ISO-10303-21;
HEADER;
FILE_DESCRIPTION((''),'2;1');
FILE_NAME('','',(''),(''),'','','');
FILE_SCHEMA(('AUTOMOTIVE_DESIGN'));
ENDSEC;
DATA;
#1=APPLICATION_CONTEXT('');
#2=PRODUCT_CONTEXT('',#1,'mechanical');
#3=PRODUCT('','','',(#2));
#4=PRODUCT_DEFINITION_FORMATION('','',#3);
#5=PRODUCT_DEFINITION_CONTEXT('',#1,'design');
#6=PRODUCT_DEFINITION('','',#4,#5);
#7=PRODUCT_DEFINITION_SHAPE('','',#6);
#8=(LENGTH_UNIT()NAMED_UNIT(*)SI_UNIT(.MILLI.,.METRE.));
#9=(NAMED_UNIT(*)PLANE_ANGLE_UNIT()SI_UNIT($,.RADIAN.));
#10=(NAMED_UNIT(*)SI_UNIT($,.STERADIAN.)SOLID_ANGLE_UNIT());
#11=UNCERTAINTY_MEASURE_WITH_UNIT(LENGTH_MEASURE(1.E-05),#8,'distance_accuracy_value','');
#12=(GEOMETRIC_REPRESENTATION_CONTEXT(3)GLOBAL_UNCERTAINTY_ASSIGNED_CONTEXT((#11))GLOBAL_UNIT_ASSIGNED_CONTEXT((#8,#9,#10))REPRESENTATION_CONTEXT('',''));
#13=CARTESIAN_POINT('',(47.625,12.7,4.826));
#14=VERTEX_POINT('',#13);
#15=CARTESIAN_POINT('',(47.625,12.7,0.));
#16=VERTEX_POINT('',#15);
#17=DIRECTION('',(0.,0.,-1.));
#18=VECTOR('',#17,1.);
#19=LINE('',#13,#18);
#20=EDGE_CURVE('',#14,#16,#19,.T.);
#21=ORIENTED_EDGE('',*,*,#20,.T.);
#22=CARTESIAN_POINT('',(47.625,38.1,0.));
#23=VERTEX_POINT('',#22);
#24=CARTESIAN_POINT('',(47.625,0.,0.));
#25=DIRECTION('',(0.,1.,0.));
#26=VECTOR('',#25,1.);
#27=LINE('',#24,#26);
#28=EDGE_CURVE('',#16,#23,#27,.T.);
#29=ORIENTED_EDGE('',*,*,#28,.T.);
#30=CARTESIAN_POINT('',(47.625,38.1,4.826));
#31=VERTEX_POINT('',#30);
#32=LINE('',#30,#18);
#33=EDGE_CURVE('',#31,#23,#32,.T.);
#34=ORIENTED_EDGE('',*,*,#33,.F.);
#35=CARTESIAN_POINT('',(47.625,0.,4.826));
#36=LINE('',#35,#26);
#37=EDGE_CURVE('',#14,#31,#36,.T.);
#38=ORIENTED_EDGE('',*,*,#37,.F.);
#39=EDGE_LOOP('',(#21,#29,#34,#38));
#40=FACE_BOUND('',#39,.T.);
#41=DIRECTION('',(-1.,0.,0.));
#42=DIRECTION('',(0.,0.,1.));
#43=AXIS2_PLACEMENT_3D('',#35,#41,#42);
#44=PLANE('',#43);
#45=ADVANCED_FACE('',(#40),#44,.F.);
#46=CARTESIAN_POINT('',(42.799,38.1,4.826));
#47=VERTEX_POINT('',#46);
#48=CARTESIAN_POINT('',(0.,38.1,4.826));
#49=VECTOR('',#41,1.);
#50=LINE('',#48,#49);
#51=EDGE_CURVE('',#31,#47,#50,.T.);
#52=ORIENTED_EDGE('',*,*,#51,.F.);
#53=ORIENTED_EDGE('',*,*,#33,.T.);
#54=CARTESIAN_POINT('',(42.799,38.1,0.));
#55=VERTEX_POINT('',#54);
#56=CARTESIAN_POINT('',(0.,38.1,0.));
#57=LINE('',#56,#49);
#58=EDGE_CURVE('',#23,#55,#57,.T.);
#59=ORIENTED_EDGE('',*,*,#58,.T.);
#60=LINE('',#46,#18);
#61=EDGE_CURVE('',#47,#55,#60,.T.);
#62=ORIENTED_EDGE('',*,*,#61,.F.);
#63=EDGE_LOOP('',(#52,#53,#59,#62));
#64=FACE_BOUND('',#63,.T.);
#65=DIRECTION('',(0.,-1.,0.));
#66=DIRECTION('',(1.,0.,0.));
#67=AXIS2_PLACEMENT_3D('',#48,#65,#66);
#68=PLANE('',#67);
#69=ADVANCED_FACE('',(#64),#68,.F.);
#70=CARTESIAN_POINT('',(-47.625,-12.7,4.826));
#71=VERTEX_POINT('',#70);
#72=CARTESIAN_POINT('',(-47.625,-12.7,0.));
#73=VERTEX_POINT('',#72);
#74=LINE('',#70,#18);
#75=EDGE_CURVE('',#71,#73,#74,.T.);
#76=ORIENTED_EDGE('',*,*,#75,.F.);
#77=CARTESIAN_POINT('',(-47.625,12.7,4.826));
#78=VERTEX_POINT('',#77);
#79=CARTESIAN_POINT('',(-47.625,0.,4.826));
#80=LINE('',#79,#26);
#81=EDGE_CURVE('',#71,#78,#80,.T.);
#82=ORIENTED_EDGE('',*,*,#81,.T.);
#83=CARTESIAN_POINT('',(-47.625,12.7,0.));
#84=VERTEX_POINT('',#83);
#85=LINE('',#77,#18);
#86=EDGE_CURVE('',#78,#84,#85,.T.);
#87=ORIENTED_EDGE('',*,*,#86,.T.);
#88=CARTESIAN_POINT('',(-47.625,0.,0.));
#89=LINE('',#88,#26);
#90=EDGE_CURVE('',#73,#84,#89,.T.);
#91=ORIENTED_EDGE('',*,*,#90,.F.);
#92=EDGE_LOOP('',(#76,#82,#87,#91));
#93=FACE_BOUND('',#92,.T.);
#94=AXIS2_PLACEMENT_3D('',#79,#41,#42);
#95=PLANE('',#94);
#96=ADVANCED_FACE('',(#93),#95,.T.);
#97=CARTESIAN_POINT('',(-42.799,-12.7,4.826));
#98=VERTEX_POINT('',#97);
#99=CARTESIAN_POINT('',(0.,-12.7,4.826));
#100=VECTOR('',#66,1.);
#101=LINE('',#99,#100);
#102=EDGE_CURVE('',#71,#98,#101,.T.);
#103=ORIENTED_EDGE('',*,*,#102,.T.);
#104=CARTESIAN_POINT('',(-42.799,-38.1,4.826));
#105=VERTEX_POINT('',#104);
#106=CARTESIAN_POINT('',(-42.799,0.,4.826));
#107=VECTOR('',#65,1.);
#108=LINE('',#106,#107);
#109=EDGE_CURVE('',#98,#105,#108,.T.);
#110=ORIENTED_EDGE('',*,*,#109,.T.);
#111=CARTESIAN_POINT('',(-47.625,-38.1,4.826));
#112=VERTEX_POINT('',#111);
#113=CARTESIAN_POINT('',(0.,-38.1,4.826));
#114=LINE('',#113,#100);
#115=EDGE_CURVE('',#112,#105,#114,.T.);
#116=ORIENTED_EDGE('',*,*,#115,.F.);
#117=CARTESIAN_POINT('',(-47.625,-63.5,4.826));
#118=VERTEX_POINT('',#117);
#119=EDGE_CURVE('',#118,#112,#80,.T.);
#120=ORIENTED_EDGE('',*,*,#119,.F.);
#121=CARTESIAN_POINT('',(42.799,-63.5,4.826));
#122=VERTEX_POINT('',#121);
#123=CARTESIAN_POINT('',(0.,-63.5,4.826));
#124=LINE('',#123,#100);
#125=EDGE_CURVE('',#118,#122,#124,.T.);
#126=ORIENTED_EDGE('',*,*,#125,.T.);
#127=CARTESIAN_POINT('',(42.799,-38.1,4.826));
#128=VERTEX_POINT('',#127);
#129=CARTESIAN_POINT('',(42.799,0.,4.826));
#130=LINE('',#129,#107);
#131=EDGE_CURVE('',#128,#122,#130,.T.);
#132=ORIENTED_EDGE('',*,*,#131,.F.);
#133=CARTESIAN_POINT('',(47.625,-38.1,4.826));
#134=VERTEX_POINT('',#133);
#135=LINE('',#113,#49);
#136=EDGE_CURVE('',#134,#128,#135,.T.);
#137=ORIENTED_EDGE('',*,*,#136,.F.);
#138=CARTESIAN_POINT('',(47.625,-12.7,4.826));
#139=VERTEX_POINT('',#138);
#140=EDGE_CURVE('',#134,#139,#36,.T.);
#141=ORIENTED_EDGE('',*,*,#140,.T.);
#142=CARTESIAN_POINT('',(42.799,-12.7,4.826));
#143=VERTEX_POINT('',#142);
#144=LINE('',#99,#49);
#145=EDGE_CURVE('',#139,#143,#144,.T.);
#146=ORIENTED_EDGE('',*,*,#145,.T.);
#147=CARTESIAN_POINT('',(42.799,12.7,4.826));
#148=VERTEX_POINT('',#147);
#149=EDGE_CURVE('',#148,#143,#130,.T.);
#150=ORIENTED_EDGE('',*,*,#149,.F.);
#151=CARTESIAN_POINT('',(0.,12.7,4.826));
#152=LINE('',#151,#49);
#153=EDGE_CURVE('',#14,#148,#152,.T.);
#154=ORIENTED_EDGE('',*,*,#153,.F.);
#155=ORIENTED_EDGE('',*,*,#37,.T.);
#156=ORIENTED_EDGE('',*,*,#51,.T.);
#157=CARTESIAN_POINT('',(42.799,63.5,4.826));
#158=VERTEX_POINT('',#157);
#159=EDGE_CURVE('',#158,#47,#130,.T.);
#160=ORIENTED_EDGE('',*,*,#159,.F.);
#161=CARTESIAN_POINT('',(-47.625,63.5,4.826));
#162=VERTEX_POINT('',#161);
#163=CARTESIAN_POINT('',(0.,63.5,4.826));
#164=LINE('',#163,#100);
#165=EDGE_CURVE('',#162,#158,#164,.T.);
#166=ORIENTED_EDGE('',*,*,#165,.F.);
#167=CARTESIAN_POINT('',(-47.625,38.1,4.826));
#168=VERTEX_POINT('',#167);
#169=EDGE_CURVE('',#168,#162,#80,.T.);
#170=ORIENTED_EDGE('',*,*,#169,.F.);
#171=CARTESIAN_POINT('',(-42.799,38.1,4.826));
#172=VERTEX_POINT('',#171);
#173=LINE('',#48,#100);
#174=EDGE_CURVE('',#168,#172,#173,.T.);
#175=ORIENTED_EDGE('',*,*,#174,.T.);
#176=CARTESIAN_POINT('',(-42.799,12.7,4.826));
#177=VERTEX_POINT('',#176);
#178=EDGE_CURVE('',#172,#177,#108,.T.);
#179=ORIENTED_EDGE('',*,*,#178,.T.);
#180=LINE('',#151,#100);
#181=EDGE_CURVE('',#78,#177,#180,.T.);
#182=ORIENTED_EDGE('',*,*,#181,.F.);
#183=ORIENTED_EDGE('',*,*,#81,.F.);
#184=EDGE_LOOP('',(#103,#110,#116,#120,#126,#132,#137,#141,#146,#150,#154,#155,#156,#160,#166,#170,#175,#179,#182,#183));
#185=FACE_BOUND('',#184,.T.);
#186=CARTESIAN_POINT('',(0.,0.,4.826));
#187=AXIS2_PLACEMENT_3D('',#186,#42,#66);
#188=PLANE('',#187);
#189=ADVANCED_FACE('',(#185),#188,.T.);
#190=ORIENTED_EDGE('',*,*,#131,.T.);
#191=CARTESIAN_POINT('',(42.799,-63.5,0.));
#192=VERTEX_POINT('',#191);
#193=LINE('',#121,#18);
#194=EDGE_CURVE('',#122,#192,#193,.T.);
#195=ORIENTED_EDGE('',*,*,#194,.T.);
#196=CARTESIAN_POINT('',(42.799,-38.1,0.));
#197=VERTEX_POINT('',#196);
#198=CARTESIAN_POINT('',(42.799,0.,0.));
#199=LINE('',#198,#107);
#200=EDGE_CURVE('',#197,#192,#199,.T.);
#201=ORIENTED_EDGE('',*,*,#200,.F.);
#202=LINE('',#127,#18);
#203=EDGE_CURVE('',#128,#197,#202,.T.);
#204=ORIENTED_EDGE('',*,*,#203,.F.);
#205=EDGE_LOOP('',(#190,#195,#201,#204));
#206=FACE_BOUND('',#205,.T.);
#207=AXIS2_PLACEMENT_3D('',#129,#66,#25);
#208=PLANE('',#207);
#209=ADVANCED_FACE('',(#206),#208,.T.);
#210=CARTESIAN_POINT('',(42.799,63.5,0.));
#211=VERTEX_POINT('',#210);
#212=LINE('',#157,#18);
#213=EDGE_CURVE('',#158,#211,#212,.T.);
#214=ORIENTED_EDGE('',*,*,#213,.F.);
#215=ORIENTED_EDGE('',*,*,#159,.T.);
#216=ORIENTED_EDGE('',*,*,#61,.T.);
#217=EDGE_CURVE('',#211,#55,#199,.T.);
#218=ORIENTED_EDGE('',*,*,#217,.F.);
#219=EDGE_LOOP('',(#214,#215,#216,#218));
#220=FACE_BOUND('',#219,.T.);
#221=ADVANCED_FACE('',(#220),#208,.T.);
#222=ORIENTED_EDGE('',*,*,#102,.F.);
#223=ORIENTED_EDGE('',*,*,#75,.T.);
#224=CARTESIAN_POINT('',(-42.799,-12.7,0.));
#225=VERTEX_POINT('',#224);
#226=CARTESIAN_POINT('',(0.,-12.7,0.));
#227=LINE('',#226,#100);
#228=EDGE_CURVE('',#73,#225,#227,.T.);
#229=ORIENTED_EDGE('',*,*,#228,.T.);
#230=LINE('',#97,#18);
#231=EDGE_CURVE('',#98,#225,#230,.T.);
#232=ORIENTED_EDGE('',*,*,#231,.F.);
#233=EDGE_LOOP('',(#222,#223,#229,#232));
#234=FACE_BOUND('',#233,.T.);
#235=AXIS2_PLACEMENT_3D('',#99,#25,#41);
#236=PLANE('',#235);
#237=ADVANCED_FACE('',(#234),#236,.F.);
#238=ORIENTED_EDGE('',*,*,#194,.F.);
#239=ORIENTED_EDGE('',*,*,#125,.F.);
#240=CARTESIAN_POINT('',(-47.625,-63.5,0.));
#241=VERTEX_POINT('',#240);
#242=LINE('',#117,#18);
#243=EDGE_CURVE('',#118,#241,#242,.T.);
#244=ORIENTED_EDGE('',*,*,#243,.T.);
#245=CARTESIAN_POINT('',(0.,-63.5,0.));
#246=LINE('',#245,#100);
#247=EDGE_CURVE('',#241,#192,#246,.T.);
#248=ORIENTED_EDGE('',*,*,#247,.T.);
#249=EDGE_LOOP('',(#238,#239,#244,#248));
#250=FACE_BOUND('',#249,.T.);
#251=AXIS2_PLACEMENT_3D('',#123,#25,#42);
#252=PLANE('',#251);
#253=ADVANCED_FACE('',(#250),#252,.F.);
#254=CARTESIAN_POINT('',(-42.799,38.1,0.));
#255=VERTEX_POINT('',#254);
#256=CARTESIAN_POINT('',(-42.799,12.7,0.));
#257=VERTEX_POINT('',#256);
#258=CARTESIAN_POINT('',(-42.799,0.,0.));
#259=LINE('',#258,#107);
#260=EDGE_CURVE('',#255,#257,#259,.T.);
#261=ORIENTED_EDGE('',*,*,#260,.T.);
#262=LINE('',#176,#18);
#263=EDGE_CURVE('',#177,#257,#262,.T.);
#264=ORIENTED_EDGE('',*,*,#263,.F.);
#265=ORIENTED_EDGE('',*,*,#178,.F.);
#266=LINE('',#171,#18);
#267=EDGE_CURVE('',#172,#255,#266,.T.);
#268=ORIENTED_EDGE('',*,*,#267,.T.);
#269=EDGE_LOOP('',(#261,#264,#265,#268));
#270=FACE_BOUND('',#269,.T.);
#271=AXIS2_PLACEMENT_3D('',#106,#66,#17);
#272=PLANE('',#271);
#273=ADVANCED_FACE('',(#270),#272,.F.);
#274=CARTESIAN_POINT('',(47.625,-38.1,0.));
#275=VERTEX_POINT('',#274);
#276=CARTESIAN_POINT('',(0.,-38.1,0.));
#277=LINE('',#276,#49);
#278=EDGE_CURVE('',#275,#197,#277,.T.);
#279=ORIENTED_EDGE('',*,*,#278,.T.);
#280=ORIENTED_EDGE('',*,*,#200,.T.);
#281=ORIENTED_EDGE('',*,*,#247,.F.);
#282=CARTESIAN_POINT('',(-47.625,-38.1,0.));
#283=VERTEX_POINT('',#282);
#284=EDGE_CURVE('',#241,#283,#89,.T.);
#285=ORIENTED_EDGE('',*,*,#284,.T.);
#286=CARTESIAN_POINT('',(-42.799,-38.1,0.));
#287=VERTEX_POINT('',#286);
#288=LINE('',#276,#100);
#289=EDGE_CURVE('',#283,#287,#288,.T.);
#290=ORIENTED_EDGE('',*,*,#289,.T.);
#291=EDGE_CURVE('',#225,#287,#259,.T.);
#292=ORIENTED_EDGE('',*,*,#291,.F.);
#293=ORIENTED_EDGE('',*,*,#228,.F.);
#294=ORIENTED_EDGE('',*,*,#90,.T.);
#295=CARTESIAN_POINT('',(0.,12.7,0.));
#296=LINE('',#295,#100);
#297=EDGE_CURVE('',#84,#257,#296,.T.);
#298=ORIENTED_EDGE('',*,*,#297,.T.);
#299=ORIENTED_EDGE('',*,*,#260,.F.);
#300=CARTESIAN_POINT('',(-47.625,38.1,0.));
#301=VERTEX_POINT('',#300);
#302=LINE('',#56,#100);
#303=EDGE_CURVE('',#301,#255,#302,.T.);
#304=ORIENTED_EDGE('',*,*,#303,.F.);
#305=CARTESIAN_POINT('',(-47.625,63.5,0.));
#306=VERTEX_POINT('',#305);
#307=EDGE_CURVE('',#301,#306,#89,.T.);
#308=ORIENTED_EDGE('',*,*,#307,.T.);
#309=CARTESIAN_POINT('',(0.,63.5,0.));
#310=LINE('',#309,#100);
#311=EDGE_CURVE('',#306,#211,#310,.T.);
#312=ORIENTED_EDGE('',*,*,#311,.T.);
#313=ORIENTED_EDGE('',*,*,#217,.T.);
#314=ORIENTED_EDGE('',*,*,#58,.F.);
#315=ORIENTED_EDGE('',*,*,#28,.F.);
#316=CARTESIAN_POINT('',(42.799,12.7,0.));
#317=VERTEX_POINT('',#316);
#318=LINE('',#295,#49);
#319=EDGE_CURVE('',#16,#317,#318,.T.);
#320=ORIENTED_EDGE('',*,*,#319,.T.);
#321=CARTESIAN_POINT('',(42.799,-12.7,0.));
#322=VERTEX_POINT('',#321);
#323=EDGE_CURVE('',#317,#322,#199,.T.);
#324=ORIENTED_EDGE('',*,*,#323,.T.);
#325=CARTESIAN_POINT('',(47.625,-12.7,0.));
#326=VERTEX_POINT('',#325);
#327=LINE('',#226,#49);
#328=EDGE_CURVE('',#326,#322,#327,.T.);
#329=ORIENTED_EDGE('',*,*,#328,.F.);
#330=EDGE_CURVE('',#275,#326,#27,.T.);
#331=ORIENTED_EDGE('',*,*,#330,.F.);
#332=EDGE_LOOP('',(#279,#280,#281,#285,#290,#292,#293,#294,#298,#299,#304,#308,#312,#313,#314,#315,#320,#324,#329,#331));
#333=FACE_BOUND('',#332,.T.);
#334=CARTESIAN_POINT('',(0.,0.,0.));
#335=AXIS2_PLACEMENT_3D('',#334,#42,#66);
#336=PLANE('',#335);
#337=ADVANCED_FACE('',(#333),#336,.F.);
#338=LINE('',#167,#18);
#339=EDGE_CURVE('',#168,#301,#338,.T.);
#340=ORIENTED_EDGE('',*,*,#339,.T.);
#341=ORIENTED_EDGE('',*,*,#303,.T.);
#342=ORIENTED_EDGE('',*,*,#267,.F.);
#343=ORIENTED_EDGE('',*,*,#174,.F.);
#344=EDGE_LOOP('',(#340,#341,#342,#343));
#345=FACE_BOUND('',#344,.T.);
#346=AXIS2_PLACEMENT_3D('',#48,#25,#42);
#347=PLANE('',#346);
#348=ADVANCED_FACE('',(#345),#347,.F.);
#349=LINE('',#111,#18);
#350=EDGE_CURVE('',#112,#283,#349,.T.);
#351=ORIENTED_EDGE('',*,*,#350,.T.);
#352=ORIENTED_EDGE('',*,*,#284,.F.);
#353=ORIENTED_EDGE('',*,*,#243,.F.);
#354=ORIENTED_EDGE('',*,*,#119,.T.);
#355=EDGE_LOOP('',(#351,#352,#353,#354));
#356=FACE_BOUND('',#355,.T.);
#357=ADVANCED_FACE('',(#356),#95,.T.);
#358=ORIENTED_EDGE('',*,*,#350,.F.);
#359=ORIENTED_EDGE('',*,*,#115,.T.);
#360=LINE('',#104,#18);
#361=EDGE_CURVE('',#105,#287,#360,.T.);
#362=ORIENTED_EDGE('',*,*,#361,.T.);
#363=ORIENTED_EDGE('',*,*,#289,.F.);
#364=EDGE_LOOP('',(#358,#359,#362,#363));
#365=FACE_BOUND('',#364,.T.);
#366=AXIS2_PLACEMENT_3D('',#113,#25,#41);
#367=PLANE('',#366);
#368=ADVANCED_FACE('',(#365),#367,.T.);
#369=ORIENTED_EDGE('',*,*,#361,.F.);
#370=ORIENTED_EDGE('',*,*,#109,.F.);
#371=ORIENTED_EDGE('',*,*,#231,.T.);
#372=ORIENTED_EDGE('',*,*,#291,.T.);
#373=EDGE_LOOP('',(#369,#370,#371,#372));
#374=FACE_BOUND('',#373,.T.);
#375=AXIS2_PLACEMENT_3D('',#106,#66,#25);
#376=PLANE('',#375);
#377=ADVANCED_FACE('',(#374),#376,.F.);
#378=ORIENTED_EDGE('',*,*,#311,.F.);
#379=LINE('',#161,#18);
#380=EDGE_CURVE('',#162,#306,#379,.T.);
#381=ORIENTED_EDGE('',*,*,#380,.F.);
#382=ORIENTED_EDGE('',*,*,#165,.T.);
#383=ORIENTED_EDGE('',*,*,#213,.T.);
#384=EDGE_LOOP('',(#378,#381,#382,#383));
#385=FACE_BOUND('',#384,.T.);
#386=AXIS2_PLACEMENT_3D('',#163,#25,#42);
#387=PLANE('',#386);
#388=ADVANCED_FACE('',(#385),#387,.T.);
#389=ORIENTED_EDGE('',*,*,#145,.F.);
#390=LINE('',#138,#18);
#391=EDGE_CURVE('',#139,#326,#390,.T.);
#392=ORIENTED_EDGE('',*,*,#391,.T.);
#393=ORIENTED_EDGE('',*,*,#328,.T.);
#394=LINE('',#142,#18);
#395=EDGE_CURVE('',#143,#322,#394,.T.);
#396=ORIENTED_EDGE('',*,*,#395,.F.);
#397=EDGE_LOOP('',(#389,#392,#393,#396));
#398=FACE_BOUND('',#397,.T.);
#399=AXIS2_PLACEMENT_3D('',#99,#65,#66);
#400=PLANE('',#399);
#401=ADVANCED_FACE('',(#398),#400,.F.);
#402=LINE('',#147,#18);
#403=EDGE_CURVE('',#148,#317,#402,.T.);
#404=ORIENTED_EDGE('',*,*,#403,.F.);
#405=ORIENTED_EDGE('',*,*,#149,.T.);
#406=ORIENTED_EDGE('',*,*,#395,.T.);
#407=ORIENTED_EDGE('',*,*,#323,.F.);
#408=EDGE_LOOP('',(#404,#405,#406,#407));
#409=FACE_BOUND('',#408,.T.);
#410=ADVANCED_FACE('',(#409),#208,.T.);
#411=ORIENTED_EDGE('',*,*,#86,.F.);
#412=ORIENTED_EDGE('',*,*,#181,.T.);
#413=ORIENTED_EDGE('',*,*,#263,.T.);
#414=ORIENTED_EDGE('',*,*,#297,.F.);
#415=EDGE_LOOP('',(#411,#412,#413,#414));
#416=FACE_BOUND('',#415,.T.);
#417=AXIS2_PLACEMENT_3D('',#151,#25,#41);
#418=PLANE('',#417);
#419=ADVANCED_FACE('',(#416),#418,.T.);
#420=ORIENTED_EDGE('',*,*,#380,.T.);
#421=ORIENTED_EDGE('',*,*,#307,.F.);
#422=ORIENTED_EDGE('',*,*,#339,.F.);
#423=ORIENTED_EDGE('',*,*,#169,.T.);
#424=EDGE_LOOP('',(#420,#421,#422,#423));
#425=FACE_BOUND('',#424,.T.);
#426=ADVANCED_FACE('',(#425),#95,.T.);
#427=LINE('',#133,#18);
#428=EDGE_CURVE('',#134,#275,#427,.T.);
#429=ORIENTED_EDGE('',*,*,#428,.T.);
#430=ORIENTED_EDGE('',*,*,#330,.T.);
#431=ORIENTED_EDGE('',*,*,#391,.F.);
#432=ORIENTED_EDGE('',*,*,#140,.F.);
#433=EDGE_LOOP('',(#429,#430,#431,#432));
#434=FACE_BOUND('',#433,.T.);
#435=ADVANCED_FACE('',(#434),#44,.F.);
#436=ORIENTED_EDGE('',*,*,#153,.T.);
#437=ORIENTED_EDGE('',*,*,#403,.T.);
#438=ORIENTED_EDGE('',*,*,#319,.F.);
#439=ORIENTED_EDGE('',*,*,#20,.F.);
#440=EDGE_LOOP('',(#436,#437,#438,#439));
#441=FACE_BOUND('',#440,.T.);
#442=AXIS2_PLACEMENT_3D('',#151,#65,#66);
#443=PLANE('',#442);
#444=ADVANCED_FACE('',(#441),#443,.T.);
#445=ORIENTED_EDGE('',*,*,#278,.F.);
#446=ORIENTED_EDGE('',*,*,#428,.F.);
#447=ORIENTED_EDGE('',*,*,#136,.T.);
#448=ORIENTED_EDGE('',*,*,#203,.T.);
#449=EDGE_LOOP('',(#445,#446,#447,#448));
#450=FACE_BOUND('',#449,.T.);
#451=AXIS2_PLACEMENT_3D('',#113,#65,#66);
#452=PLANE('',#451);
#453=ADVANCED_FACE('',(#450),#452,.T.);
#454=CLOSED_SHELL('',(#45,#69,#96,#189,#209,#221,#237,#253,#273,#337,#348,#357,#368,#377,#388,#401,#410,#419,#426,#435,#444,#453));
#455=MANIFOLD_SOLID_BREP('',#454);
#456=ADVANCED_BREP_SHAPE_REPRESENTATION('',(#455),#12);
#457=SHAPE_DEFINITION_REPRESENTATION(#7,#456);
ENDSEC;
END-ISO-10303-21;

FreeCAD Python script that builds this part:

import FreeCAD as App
import Part
import Sketcher
Q = App.Units.Quantity


def add_polygon(sketch, points):
    """Adds a closed chain of lines whose ends are joined by coincident constraints."""
    first, n = sketch.GeometryCount, len(points)
    for a, b in zip(points, points[1:] + points[:1]):
        sketch.addGeometry(Part.LineSegment(App.Vector(*a, 0), App.Vector(*b, 0)), False)
    for i in range(n):
        sketch.addConstraint(Sketcher.Constraint("Coincident", first + i, 2, first + (i + 1) % n, 1))

doc = App.newDocument("Part")
body = doc.addObject("PartDesign::Body", "Body")

# Sketch on XY plane
sketch1 = body.newObject("Sketcher::SketchObject", "Sketch")
sketch1.AttachmentSupport = (doc.getObject("XY_Plane"), [""])
sketch1.MapMode = "FlatFace"
add_polygon(sketch1, [(-47.625, -38.1), (-47.625, -63.5), (42.799, -63.5), (42.799, -38.1), (47.625, -38.1), (47.625, -12.7), (42.799, -12.7), (42.799, 12.7), (47.625, 12.7), (47.625, 38.1), (42.799, 38.1), (42.799, 63.5), (-47.625, 63.5), (-47.625, 38.1), (-42.799, 38.1), (-42.799, 12.7), (-47.625, 12.7), (-47.625, -12.7), (-42.799, -12.7), (-42.799, -38.1)])  # lines 0-19
sketch1.addConstraint([
    Sketcher.Constraint("Vertical", 0),
    Sketcher.Constraint("Horizontal", 1),
    Sketcher.Constraint("Vertical", 2),
    Sketcher.Constraint("Horizontal", 3),
    Sketcher.Constraint("Vertical", 4),
    Sketcher.Constraint("Horizontal", 5),
    Sketcher.Constraint("Vertical", 6),
    Sketcher.Constraint("Horizontal", 7),
    Sketcher.Constraint("Vertical", 8),
    Sketcher.Constraint("Horizontal", 9),
    Sketcher.Constraint("Vertical", 10),
    Sketcher.Constraint("Horizontal", 11),
    Sketcher.Constraint("Vertical", 12),
    Sketcher.Constraint("Horizontal", 13),
    Sketcher.Constraint("Vertical", 14),
    Sketcher.Constraint("Horizontal", 15),
    Sketcher.Constraint("Vertical", 16),
    Sketcher.Constraint("Horizontal", 17),
    Sketcher.Constraint("Vertical", 18),
    Sketcher.Constraint("Horizontal", 19),
    Sketcher.Constraint("Symmetric", 3, 2, 12, 2, -1, 1),
    Sketcher.Constraint("Symmetric", 5, 2, 14, 2, -1, 1),
    Sketcher.Constraint("Symmetric", 7, 2, 16, 2, -1, 1),
    Sketcher.Constraint("Symmetric", 9, 2, 18, 2, -1, 1),
    Sketcher.Constraint("Symmetric", 8, 2, 12, 2, -2),
    Sketcher.Constraint("Symmetric", 5, 2, 17, 2, -2),
    Sketcher.Constraint("Symmetric", 1, 2, 10, 2, -1),
    Sketcher.Constraint("Vertical", 0, 2, 11, 2),
    Sketcher.Constraint("Equal", 2, 4),
    Sketcher.Constraint("Equal", 4, 6),
    Sketcher.Constraint("DistanceY", 0, 2, 0, 1, Q("1 in")),
    Sketcher.Constraint("DistanceX", 1, 1, 1, 2, Q("3.56 in")),
    Sketcher.Constraint("DistanceX", 3, 1, 3, 2, Q("0.19 in")),
])
pad1 = body.newObject("PartDesign::Pad", "Pad")
pad1.Profile = sketch1
pad1.Length = Q("0.19 in")

doc.recompute()
